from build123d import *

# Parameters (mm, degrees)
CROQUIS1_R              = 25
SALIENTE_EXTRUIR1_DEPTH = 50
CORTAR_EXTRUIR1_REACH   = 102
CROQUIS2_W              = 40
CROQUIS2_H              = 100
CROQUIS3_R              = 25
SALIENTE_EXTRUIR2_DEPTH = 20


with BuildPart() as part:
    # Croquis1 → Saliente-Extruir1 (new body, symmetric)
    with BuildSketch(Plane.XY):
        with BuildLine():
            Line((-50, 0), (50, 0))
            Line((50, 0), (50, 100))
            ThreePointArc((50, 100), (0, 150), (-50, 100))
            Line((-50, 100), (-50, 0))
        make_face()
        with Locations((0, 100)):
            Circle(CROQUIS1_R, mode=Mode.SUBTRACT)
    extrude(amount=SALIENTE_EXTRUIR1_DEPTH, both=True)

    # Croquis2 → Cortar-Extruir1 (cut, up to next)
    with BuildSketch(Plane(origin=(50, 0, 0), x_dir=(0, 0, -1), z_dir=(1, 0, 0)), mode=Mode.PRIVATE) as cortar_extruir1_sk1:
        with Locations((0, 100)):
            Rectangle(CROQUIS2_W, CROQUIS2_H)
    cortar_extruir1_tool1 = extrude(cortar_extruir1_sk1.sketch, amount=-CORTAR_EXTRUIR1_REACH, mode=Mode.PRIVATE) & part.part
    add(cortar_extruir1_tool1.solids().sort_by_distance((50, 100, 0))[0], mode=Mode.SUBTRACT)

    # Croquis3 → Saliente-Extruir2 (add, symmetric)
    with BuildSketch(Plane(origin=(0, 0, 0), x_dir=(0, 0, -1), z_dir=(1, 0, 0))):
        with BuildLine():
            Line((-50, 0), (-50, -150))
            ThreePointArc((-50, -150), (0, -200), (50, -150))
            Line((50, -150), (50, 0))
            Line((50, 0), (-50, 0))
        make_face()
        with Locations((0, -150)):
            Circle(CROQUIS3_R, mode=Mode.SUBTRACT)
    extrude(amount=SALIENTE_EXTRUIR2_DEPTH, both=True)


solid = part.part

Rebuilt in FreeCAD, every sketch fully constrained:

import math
import FreeCAD as App
import Part
import Sketcher

V = App.Vector


def add_polygon(sketch, points):
    """Adds a closed chain of lines whose ends are joined by coincident constraints."""
    first, n = sketch.GeometryCount, len(points)
    for a, b in zip(points, points[1:] + points[:1]):
        sketch.addGeometry(Part.LineSegment(App.Vector(*a, 0), App.Vector(*b, 0)), False)
    for i in range(n):
        sketch.addConstraint(Sketcher.Constraint("Coincident", first + i, 2, first + (i + 1) % n, 1))

doc = App.newDocument("Part")
body = doc.addObject("PartDesign::Body", "Body")

sketch1 = doc.addObject("Sketcher::SketchObject", "Sketch")
body.addObject(sketch1)
sketch1.AttachmentSupport = (doc.XY_Plane, [""])
sketch1.MapMode = "FlatFace"
sketch1.addGeometry([
    Part.LineSegment(V(-50, 0, 0), V(50, 0, 0)),
    Part.LineSegment(V(50, 0, 0), V(50, 100, 0)),
    Part.ArcOfCircle(Part.Circle(V(0, 100, 0), V(0, 0, 1), 50), math.radians(0), math.radians(180)),
    Part.LineSegment(V(-50, 100, 0), V(-50, 0, 0)),
    Part.Circle(V(0, 100, 0), V(0, 0, 1), 25),
], False)
sketch1.addConstraint([
    Sketcher.Constraint("Coincident", 0, 2, 1, 1),
    Sketcher.Constraint("Tangent", 1, 2, 2, 1),
    Sketcher.Constraint("Tangent", 2, 2, 3, 1),
    Sketcher.Constraint("Coincident", 3, 2, 0, 1),
    Sketcher.Constraint("Horizontal", 0),
    Sketcher.Constraint("Vertical", 1),
    Sketcher.Constraint("Vertical", 3),
    Sketcher.Constraint("Coincident", 4, 3, 2, 3),
    Sketcher.Constraint("Symmetric", 0, 2, 3, 2, -1, 1),
    Sketcher.Constraint("Equal", 0, 1),
    Sketcher.Constraint("Diameter", 4, 50.0),
    Sketcher.Constraint("Radius", 2, 50.0),
])
pad1 = doc.addObject("PartDesign::Pad", "Pad")
body.addObject(pad1)
pad1.Profile = sketch1
pad1.Length = 100
pad1.Midplane = True

sketch2 = doc.addObject("Sketcher::SketchObject", "Sketch001")
body.addObject(sketch2)
sketch2.AttachmentSupport = (doc.YZ_Plane, [""])
sketch2.MapMode = "FlatFace"
sketch2.AttachmentOffset = App.Placement(V(0, 0, 50), App.Rotation())
add_polygon(sketch2, [(150, 20), (50, 20), (50, -20), (150, -20)])
sketch2.addConstraint([
    Sketcher.Constraint("Horizontal", 0),
    Sketcher.Constraint("Vertical", 1),
    Sketcher.Constraint("Horizontal", 2),
    Sketcher.Constraint("Vertical", 3),
    Sketcher.Constraint("DistanceX", 0, 2, 0, 1, 100.0),
    Sketcher.Constraint("DistanceY", 1, 2, 1, 1, 40.0),
    Sketcher.Constraint("DistanceX", -1, 1, 0, 2, 50.0),
    Sketcher.Constraint("DistanceY", -1, 1, 0, 2, 20.0),
])
pocket1 = doc.addObject("PartDesign::Pocket", "Pocket")
body.addObject(pocket1)
pocket1.Profile = sketch2
pocket1.Type = "UpToFirst"

sketch3 = doc.addObject("Sketcher::SketchObject", "Sketch002")
body.addObject(sketch3)
sketch3.AttachmentSupport = (doc.YZ_Plane, [""])
sketch3.MapMode = "FlatFace"
sketch3.addGeometry([
    Part.LineSegment(V(0, 50, 0), V(-150, 50, 0)),
    Part.ArcOfCircle(Part.Circle(V(-150, 0, 0), V(0, 0, 1), 50), math.radians(90), math.radians(270)),
    Part.LineSegment(V(-150, -50, 0), V(0, -50, 0)),
    Part.LineSegment(V(0, -50, 0), V(0, 50, 0)),
    Part.Circle(V(-150, 0, 0), V(0, 0, 1), 25),
], False)
sketch3.addConstraint([
    Sketcher.Constraint("Tangent", 0, 2, 1, 1),
    Sketcher.Constraint("Tangent", 1, 2, 2, 1),
    Sketcher.Constraint("Coincident", 2, 2, 3, 1),
    Sketcher.Constraint("Coincident", 3, 2, 0, 1),
    Sketcher.Constraint("Horizontal", 0),
    Sketcher.Constraint("Horizontal", 2),
    Sketcher.Constraint("Vertical", 3),
    Sketcher.Constraint("Coincident", 4, 3, 1, 3),
    Sketcher.Constraint("Symmetric", 2, 2, 3, 2, -1, 1),
    Sketcher.Constraint("Diameter", 4, 50.0),
    Sketcher.Constraint("Radius", 1, 50.0),
    Sketcher.Constraint("DistanceX", 0, 2, 0, 1, 150.0),
])
pad2 = doc.addObject("PartDesign::Pad", "Pad001")
body.addObject(pad2)
pad2.Profile = sketch3
pad2.Length = 40
pad2.Midplane = True

doc.recompute()
